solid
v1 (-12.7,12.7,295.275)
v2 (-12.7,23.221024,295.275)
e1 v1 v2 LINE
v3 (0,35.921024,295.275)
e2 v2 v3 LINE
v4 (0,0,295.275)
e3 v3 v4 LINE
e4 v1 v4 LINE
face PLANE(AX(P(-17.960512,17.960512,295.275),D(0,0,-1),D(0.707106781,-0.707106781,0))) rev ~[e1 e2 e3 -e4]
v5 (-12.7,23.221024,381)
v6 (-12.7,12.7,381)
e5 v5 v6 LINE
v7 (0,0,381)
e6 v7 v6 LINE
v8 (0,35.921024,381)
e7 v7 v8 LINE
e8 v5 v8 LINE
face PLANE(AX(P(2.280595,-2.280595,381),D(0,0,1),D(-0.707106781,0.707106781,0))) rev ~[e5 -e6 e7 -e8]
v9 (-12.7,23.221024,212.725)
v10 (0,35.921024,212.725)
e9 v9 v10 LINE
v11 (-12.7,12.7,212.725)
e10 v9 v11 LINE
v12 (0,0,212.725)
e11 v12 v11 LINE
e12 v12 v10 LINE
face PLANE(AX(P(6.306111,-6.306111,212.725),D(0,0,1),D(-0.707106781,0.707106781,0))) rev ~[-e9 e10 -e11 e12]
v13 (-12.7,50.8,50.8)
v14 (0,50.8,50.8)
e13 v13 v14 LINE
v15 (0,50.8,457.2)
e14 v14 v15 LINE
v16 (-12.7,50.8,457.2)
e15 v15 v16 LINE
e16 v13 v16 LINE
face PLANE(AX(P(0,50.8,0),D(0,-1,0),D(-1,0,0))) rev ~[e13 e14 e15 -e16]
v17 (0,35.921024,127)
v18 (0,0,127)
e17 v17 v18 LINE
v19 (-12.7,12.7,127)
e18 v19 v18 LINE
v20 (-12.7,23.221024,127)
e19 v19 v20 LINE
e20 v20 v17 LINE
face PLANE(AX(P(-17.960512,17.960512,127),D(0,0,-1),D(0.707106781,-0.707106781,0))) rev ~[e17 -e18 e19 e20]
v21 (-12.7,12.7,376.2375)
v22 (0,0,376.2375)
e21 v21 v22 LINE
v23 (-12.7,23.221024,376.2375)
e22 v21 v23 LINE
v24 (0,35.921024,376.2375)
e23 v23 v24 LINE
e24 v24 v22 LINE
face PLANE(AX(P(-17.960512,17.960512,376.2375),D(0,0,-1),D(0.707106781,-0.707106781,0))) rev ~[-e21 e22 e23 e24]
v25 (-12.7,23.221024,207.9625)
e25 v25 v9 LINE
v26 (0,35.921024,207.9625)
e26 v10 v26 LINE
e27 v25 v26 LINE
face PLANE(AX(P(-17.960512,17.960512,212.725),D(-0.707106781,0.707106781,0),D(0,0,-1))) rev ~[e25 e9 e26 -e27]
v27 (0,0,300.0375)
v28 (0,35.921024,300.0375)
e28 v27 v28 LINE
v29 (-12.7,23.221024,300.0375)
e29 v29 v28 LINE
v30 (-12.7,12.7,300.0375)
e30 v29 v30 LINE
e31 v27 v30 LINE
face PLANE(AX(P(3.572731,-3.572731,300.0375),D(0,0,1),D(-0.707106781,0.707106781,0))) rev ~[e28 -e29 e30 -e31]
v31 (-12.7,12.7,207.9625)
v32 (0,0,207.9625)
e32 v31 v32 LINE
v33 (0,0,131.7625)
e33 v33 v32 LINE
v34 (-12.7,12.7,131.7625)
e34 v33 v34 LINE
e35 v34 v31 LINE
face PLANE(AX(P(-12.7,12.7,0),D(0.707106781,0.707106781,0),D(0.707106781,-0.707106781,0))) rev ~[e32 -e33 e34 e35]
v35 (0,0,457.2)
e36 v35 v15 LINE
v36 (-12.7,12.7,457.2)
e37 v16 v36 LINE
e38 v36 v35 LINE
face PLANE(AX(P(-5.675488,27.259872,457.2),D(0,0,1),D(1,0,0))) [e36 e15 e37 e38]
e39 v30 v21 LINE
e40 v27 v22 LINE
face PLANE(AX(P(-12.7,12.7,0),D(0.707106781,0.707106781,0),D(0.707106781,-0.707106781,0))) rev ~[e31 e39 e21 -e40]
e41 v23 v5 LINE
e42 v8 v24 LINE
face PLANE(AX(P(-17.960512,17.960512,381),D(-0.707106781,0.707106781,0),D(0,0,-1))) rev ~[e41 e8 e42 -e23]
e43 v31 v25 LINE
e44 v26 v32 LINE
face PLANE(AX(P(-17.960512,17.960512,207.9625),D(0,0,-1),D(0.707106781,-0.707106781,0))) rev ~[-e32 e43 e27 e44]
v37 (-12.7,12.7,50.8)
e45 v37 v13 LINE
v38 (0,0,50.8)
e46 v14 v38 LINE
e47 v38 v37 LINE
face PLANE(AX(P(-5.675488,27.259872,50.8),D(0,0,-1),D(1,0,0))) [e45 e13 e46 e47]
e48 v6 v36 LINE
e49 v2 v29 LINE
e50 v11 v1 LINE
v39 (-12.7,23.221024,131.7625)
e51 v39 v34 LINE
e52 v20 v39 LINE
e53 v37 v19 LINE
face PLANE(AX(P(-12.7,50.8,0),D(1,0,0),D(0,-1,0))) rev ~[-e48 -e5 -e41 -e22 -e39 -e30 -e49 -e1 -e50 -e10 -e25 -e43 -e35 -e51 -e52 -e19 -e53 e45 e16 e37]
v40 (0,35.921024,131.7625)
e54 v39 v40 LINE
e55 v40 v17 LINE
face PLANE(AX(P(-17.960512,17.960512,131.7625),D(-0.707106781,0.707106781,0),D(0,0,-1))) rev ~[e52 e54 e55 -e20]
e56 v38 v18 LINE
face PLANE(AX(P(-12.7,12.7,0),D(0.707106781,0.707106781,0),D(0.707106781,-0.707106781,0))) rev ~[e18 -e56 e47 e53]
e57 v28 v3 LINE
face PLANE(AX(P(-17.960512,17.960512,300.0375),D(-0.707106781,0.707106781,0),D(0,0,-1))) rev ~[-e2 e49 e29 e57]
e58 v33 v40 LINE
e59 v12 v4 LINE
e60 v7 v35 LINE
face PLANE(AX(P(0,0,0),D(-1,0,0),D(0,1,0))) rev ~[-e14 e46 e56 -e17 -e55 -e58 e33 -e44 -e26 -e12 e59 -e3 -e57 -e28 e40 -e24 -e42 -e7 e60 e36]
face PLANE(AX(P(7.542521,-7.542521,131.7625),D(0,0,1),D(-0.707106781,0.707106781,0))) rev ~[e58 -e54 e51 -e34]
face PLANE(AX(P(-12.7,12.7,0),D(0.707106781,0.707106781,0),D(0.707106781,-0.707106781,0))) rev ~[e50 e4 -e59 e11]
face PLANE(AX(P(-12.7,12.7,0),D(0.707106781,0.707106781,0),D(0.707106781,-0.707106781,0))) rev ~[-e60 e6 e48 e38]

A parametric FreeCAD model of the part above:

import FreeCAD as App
import Part
import Sketcher
from FreeCAD import Vector
Q = App.Units.Quantity

doc = App.newDocument("Part")
body = doc.addObject("PartDesign::Body", "Body")

sketch1 = body.newObject("Sketcher::SketchObject", "Sketch")
sketch1.AttachmentSupport = (doc.getObject("XY_Plane"), [""])
sketch1.MapMode = "FlatFace"
sketch1.addGeometry([
    Part.LineSegment(Vector(-13, 13, 0), Vector(0, 0, 0)),
    Part.LineSegment(Vector(0, 0, 0), Vector(0, 51, 0)),
    Part.LineSegment(Vector(0, 51, 0), Vector(-13, 51, 0)),
    Part.LineSegment(Vector(-13, 51, 0), Vector(-13, 13, 0)),
], False)
sketch1.addConstraint([
    Sketcher.Constraint("Coincident", 0, 2, 1, 1),
    Sketcher.Constraint("Coincident", 1, 2, 2, 1),
    Sketcher.Constraint("Coincident", 2, 2, 3, 1),
    Sketcher.Constraint("Coincident", 3, 2, 0, 1),
    Sketcher.Constraint("Vertical", 1),
    Sketcher.Constraint("Horizontal", 2),
    Sketcher.Constraint("Vertical", 3),
    Sketcher.Constraint("Coincident", 0, 2, -1, 1),
    Sketcher.Constraint("DistanceY", 1, 1, 1, 2, Q("2 in")),
    Sketcher.Constraint("DistanceX", 2, 2, 2, 1, Q("0.5 in")),
    Sketcher.Constraint("DistanceY", 3, 2, 3, 1, Q("1.5 in")),
])
pad1 = body.newObject("PartDesign::Pad", "Pad")
pad1.Profile = sketch1
pad1.Length = Q("18 in")

sketch2 = body.newObject("Sketcher::SketchObject", "Sketch001")
sketch2.AttachmentSupport = (doc.getObject("XY_Plane"), [""])
sketch2.MapMode = "FlatFace"
sketch2.addGeometry([
    Part.LineSegment(Vector(0, 0, 0), Vector(-13, 13, 0)),
    Part.LineSegment(Vector(-13, 13, 0), Vector(-13, 51, 0)),
    Part.LineSegment(Vector(-13, 51, 0), Vector(0, 51, 0)),
    Part.LineSegment(Vector(0, 51, 0), Vector(0, 0, 0)),
], False)
sketch2.addConstraint([
    Sketcher.Constraint("Coincident", 0, 2, 1, 1),
    Sketcher.Constraint("Coincident", 1, 2, 2, 1),
    Sketcher.Constraint("Coincident", 2, 2, 3, 1),
    Sketcher.Constraint("Coincident", 3, 2, 0, 1),
    Sketcher.Constraint("Vertical", 1),
    Sketcher.Constraint("Horizontal", 2),
    Sketcher.Constraint("Vertical", 3),
    Sketcher.Constraint("Coincident", 3, 2, -1, 1),
    Sketcher.Constraint("DistanceY", 3, 2, 3, 1, Q("2 in")),
    Sketcher.Constraint("DistanceX", 2, 1, 2, 2, Q("0.5 in")),
    Sketcher.Constraint("DistanceY", 1, 1, 1, 2, Q("1.5 in")),
])
pocket1 = body.newObject("PartDesign::Pocket", "Pocket")
pocket1.Profile = sketch2
pocket1.Length = Q("2 in")
pocket1.Reversed = True

sketch3 = body.newObject("Sketcher::SketchObject", "Sketch002")
sketch3.Placement = App.Placement(Vector(0, 0, 0), App.Rotation(Vector(0.707106781, -0.707106781, 0), Vector(0, 0, 0.999999999), Vector(-0.707106781, -0.707106781, 0), "ZXY"))
sketch3.addGeometry([
    Part.LineSegment(Vector(3.2, 381, 0), Vector(-25.4, 381, 0)),
    Part.LineSegment(Vector(-25.4, 381, 0), Vector(-25.4, 376.2, 0)),
    Part.LineSegment(Vector(-25.4, 376.2, 0), Vector(3.2, 376.2, 0)),
    Part.LineSegment(Vector(3.2, 376.2, 0), Vector(3.2, 381, 0)),
    Part.LineSegment(Vector(5.1, 300, 0), Vector(-25.4, 300, 0)),
    Part.LineSegment(Vector(-25.4, 300, 0), Vector(-25.4, 295.3, 0)),
    Part.LineSegment(Vector(-25.4, 295.3, 0), Vector(5.1, 295.3, 0)),
    Part.LineSegment(Vector(5.1, 295.3, 0), Vector(5.1, 300, 0)),
    Part.LineSegment(Vector(-25.4, 208, 0), Vector(8.9, 208, 0)),
    Part.LineSegment(Vector(8.9, 208, 0), Vector(8.9, 212.7, 0)),
    Part.LineSegment(Vector(8.9, 212.7, 0), Vector(-25.4, 212.7, 0)),
    Part.LineSegment(Vector(-25.4, 212.7, 0), Vector(-25.4, 208, 0)),
    Part.LineSegment(Vector(-25.4, 127, 0), Vector(10.7, 127, 0)),
    Part.LineSegment(Vector(10.7, 127, 0), Vector(10.7, 131.8, 0)),
    Part.LineSegment(Vector(10.7, 131.8, 0), Vector(-25.4, 131.8, 0)),
    Part.LineSegment(Vector(-25.4, 131.8, 0), Vector(-25.4, 127, 0)),
], False)
sketch3.addConstraint([
    Sketcher.Constraint("Coincident", 0, 2, 1, 1),
    Sketcher.Constraint("Coincident", 1, 2, 2, 1),
    Sketcher.Constraint("Coincident", 2, 2, 3, 1),
    Sketcher.Constraint("Coincident", 3, 2, 0, 1),
    Sketcher.Constraint("Coincident", 4, 2, 5, 1),
    Sketcher.Constraint("Coincident", 5, 2, 6, 1),
    Sketcher.Constraint("Coincident", 6, 2, 7, 1),
    Sketcher.Constraint("Coincident", 7, 2, 4, 1),
    Sketcher.Constraint("Coincident", 8, 2, 9, 1),
    Sketcher.Constraint("Coincident", 9, 2, 10, 1),
    Sketcher.Constraint("Coincident", 10, 2, 11, 1),
    Sketcher.Constraint("Coincident", 11, 2, 8, 1),
    Sketcher.Constraint("Coincident", 12, 2, 13, 1),
    Sketcher.Constraint("Coincident", 13, 2, 14, 1),
    Sketcher.Constraint("Coincident", 14, 2, 15, 1),
    Sketcher.Constraint("Coincident", 15, 2, 12, 1),
    Sketcher.Constraint("Horizontal", 0),
    Sketcher.Constraint("Vertical", 1),
    Sketcher.Constraint("Horizontal", 2),
    Sketcher.Constraint("Vertical", 3),
    Sketcher.Constraint("Horizontal", 4),
    Sketcher.Constraint("Vertical", 5),
    Sketcher.Constraint("Horizontal", 6),
    Sketcher.Constraint("Vertical", 7),
    Sketcher.Constraint("Horizontal", 8),
    Sketcher.Constraint("Vertical", 9),
    Sketcher.Constraint("Horizontal", 10),
    Sketcher.Constraint("Vertical", 11),
    Sketcher.Constraint("Horizontal", 12),
    Sketcher.Constraint("Vertical", 13),
    Sketcher.Constraint("Horizontal", 14),
    Sketcher.Constraint("Vertical", 15),
    Sketcher.Constraint("Vertical", 1, 2, 4, 2),
    Sketcher.Constraint("Vertical", 5, 2, 10, 2),
    Sketcher.Constraint("Vertical", 11, 2, 14, 2),
    Sketcher.Constraint("Equal", 3, 5),
    Sketcher.Constraint("Equal", 7, 9),
    Sketcher.Constraint("Equal", 11, 13),
    Sketcher.Constraint("DistanceX", 0, 2, -1, 1, Q("1 in")),
    Sketcher.Constraint("DistanceY", -1, 1, 0, 2, Q("15 in")),
    Sketcher.Constraint("DistanceY", -1, 1, 12, 2, Q("5 in")),
    Sketcher.Constraint("DistanceY", 4, 2, 1, 2, Q("3 in")),
    Sketcher.Constraint("DistanceY", 13, 2, 8, 2, Q("3 in")),
    Sketcher.Constraint("DistanceY", 1, 2, 1, 1, Q("0.1875 in")),
    Sketcher.Constraint("DistanceX", 0, 2, 0, 1, Q("28.625248 mm")),
    Sketcher.Constraint("DistanceX", 4, 2, 4, 1, Q("30.452605 mm")),
    Sketcher.Constraint("DistanceX", 8, 1, 8, 2, Q("34.318187 mm")),
    Sketcher.Constraint("DistanceX", 12, 1, 12, 2, Q("36.066735 mm")),
])
pocket2 = body.newObject("PartDesign::Pocket", "Pocket001")
pocket2.Profile = sketch3
pocket2.Type = "ThroughAll"

doc.recompute()
